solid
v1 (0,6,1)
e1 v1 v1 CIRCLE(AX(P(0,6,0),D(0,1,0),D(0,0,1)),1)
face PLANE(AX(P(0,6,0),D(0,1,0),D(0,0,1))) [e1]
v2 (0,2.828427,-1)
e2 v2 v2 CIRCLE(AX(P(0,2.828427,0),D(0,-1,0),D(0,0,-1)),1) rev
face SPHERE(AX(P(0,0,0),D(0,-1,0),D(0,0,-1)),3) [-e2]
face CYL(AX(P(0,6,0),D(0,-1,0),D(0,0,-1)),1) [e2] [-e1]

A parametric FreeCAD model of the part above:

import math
import FreeCAD as App
import Part
import Sketcher
from FreeCAD import Vector
Q = App.Units.Quantity

doc = App.newDocument("Part")
body = doc.addObject("PartDesign::Body", "Body")

# Sketch on XZ plane
sketch1 = doc.addObject("Sketcher::SketchObject", "Sketch")
body.addObject(sketch1)
sketch1.AttachmentSupport = (doc.XZ_Plane, [""])
sketch1.MapMode = "FlatFace"
sketch1.addGeometry(Part.LineSegment(Vector(0, -3, 0), Vector(0, 3, 0)), False)
sketch1.addGeometry(Part.ArcOfCircle(Part.Circle(Vector(0, 0, 0), Vector(0, 0, 1), 3), math.radians(-90), math.radians(90)), False)
sketch1.addConstraint(Sketcher.Constraint("Coincident", 0, 1, 1, 1))
sketch1.addConstraint(Sketcher.Constraint("Coincident", 1, 2, 0, 2))
sketch1.addConstraint(Sketcher.Constraint("Vertical", 0))
sketch1.addConstraint(Sketcher.Constraint("Coincident", 1, 3, -1, 1))
sketch1.addConstraint(Sketcher.Constraint("PointOnObject", 0, 1, -2))
sketch1.addConstraint(Sketcher.Constraint("Radius", 1, Q("3 mm")))
revolution = doc.addObject("PartDesign::Revolution", "Revolution")
body.addObject(revolution)
revolution.Profile = sketch1
revolution.ReferenceAxis = (sketch1, ["V_Axis"])
revolution.Angle = 360

# Sketch on XZ plane
sketch2 = doc.addObject("Sketcher::SketchObject", "Sketch001")
body.addObject(sketch2)
sketch2.AttachmentSupport = (doc.XZ_Plane, [""])
sketch2.MapMode = "FlatFace"
sketch2.addGeometry(Part.Circle(Vector(0, 0, 0), Vector(0, 0, 1), 1), False)
sketch2.addConstraint(Sketcher.Constraint("Coincident", 0, 3, -1, 1))
sketch2.addConstraint(Sketcher.Constraint("Diameter", 0, Q("2 mm")))
pad1 = doc.addObject("PartDesign::Pad", "Pad")
body.addObject(pad1)
pad1.Profile = sketch2
pad1.Length = 6
pad1.Reversed = True

doc.recompute()
